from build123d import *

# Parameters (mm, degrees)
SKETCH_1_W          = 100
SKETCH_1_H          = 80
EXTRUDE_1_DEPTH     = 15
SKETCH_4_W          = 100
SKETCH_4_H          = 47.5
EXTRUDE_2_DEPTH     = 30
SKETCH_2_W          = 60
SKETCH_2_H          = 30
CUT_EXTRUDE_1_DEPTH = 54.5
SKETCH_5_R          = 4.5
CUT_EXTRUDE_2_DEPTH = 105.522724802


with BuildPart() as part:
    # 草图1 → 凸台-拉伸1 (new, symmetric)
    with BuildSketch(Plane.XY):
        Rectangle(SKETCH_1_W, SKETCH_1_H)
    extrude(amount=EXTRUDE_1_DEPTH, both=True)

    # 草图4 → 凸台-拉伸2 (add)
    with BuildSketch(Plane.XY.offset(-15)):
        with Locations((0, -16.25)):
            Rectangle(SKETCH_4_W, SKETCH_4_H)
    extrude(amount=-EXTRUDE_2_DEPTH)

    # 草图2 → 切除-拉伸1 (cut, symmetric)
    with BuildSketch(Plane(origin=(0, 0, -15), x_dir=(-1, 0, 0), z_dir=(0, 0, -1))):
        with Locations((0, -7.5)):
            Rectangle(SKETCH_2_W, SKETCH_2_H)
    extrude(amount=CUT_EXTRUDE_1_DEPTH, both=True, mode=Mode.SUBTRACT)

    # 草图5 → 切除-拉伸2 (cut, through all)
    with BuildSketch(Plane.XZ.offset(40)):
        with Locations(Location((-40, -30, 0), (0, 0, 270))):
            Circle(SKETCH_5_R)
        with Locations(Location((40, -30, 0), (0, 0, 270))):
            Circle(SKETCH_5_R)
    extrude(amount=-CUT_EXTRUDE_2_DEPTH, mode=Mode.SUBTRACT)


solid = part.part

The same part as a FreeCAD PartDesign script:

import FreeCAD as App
import Part
import Sketcher
from FreeCAD import Vector


def add_polygon(sketch, points):
    """Adds a closed chain of lines whose ends are joined by coincident constraints."""
    first, n = sketch.GeometryCount, len(points)
    for a, b in zip(points, points[1:] + points[:1]):
        sketch.addGeometry(Part.LineSegment(App.Vector(*a, 0), App.Vector(*b, 0)), False)
    for i in range(n):
        sketch.addConstraint(Sketcher.Constraint("Coincident", first + i, 2, first + (i + 1) % n, 1))

doc = App.newDocument("Part")
body = doc.addObject("PartDesign::Body", "Body")

# Sketch on XY plane
sketch1 = body.newObject("Sketcher::SketchObject", "Sketch")
sketch1.AttachmentSupport = (doc.getObject("XY_Plane"), [""])
sketch1.MapMode = "FlatFace"
add_polygon(sketch1, [(-50, 40), (-50, -40), (50, -40), (50, 40)])  # lines 0-3
sketch1.addConstraint([
    Sketcher.Constraint("Vertical", 0),
    Sketcher.Constraint("Horizontal", 1),
    Sketcher.Constraint("Vertical", 2),
    Sketcher.Constraint("Horizontal", 3),
    Sketcher.Constraint("Symmetric", 0, 2, 2, 2, -1, 1),
    Sketcher.Constraint("DistanceX", 1, 1, 1, 2, 100.0),
    Sketcher.Constraint("DistanceY", 0, 2, 0, 1, 80.0),
])
pad1 = body.newObject("PartDesign::Pad", "Pad")
pad1.Profile = sketch1
pad1.Length = 30
pad1.Midplane = True

# Sketch on XY plane
sketch2 = body.newObject("Sketcher::SketchObject", "Sketch001")
sketch2.AttachmentSupport = (doc.getObject("XY_Plane"), [""])
sketch2.MapMode = "FlatFace"
sketch2.AttachmentOffset = App.Placement(Vector(0, 0, -15), App.Rotation())
add_polygon(sketch2, [(-50, 7.5), (-50, -40), (50, -40), (50, 7.5)])  # lines 0-3
sketch2.addConstraint([
    Sketcher.Constraint("Vertical", 0),
    Sketcher.Constraint("Horizontal", 1),
    Sketcher.Constraint("Vertical", 2),
    Sketcher.Constraint("Horizontal", 3),
    Sketcher.Constraint("DistanceX", 1, 1, 1, 2, 100.0),
    Sketcher.Constraint("DistanceY", 0, 2, 0, 1, 47.5),
    Sketcher.Constraint("DistanceX", 0, 2, -1, 1, 50.0),
    Sketcher.Constraint("DistanceY", 0, 2, -1, 1, 40.0),
])
pad2 = body.newObject("PartDesign::Pad", "Pad001")
pad2.Profile = sketch2
pad2.Length = 30
pad2.Reversed = True

# Sketch on XY plane
sketch3 = body.newObject("Sketcher::SketchObject", "Sketch002")
sketch3.AttachmentSupport = (doc.getObject("XY_Plane"), [""])
sketch3.MapMode = "FlatFace"
sketch3.AttachmentOffset = App.Placement(Vector(0, 0, -15), App.Rotation())
add_polygon(sketch3, [(30, 7.5), (30, -22.5), (-30, -22.5), (-30, 7.5)])  # lines 0-3
sketch3.addConstraint([
    Sketcher.Constraint("Vertical", 0),
    Sketcher.Constraint("Horizontal", 1),
    Sketcher.Constraint("Vertical", 2),
    Sketcher.Constraint("Horizontal", 3),
    Sketcher.Constraint("DistanceX", 1, 2, 1, 1, 60.0),
    Sketcher.Constraint("DistanceY", 0, 2, 0, 1, 30.0),
    Sketcher.Constraint("DistanceX", -1, 1, 0, 2, 30.0),
    Sketcher.Constraint("DistanceY", 0, 2, -1, 1, 22.5),
])
pocket1 = body.newObject("PartDesign::Pocket", "Pocket")
pocket1.Profile = sketch3
pocket1.Length = 109
pocket1.Midplane = True

# Sketch on XZ plane
sketch4 = body.newObject("Sketcher::SketchObject", "Sketch003")
sketch4.AttachmentSupport = (doc.getObject("XZ_Plane"), [""])
sketch4.MapMode = "FlatFace"
sketch4.AttachmentOffset = App.Placement(Vector(0, 0, 40), App.Rotation())
sketch4.addGeometry([
    Part.Circle(Vector(-40, -30, 0), Vector(0, 0, 1), 4.5),
    Part.Circle(Vector(40, -30, 0), Vector(0, 0, 1), 4.5),
], False)
sketch4.addConstraint([
    Sketcher.Constraint("Equal", 0, 1),
    Sketcher.Constraint("Symmetric", 0, 3, 1, 3, -2),
    Sketcher.Constraint("Diameter", 0, 9.0),
    Sketcher.Constraint("DistanceX", 0, 3, -1, 1, 40.0),
    Sketcher.Constraint("DistanceY", 0, 3, -1, 1, 30.0),
])
pocket2 = body.newObject("PartDesign::Pocket", "Pocket001")
pocket2.Profile = sketch4
pocket2.Type = "ThroughAll"

doc.recompute()
